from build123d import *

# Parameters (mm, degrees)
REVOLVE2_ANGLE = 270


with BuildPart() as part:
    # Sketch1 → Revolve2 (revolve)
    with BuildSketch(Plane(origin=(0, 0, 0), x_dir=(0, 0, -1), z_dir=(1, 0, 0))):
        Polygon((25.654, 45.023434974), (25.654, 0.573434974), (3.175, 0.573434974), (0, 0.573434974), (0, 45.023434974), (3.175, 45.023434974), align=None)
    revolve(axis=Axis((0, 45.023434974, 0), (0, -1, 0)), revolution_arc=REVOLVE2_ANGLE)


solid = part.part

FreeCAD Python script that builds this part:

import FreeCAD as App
import Part
import Sketcher
Q = App.Units.Quantity


def add_polygon(sketch, points):
    """Adds a closed chain of lines whose ends are joined by coincident constraints."""
    first, n = sketch.GeometryCount, len(points)
    for a, b in zip(points, points[1:] + points[:1]):
        sketch.addGeometry(Part.LineSegment(App.Vector(*a, 0), App.Vector(*b, 0)), False)
    for i in range(n):
        sketch.addConstraint(Sketcher.Constraint("Coincident", first + i, 2, first + (i + 1) % n, 1))

doc = App.newDocument("Part")
body = doc.addObject("PartDesign::Body", "Body")

# Sketch on YZ plane
sketch1 = doc.addObject("Sketcher::SketchObject", "Sketch")
body.addObject(sketch1)
sketch1.AttachmentSupport = (doc.YZ_Plane, [""])
sketch1.MapMode = "FlatFace"
add_polygon(sketch1, [(0.573435, -25.654), (45.023435, -25.654), (45.023435, 0), (0.573435, 0)])  # lines 0-3
sketch1.addConstraint([
    Sketcher.Constraint("Horizontal", 0),
    Sketcher.Constraint("Vertical", 1),
    Sketcher.Constraint("Horizontal", 2),
    Sketcher.Constraint("Vertical", 3),
    Sketcher.Constraint("PointOnObject", 1, 2, -1),
    Sketcher.Constraint("DistanceX", 0, 1, 0, 2, Q("1.75 in")),
    Sketcher.Constraint("DistanceY", 1, 1, 1, 2, Q("1.01 in")),
    Sketcher.Constraint("DistanceX", -1, 1, 0, 2, Q("45.023435 mm")),
])
revolution = doc.addObject("PartDesign::Revolution", "Revolution")
body.addObject(revolution)
revolution.Profile = sketch1
revolution.ReferenceAxis = (sketch1, ["H_Axis"])
revolution.Angle = 270
revolution.Reversed = True

doc.recompute()
